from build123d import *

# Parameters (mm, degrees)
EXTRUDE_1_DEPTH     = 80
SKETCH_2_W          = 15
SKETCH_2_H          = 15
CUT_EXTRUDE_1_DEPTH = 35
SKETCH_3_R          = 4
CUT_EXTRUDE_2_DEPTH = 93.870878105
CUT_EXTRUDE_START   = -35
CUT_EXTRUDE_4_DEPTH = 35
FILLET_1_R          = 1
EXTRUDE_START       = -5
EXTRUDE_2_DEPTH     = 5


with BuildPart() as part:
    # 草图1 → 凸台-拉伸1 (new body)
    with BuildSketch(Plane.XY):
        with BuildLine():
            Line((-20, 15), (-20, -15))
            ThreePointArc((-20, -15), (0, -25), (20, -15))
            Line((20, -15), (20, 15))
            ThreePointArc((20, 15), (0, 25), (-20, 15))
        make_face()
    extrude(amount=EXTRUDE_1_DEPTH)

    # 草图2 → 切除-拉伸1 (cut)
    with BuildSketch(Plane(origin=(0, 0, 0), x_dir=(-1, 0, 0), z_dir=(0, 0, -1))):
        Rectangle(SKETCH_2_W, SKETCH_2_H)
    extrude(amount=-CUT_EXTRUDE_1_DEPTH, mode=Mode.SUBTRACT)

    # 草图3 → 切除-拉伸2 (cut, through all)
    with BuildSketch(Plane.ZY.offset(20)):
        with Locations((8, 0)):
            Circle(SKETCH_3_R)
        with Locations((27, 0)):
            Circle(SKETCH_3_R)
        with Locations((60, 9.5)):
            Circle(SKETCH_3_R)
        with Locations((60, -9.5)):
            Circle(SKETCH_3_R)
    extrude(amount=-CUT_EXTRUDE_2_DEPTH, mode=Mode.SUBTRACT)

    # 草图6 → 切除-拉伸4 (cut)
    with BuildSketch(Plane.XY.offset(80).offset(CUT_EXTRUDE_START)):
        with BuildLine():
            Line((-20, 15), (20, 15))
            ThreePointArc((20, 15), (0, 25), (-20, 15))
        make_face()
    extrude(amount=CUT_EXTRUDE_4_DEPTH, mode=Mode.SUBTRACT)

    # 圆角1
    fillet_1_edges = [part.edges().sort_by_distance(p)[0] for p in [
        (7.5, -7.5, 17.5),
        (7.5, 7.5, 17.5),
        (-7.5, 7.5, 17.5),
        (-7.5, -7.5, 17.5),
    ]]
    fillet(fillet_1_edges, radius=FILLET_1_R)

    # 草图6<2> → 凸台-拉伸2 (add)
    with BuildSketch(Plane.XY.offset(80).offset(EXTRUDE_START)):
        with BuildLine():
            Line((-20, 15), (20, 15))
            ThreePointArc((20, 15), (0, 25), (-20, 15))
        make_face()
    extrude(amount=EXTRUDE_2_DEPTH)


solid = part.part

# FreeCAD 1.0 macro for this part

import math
import FreeCAD as App
import Part
import Sketcher

V = App.Vector


def edges_at(feature, points):
    """Names of the edges that pass closest to the given points."""
    edges = feature.Shape.Edges
    near = lambda p: min(range(len(edges)), key=lambda i: edges[i].distToShape(Part.Vertex(*p))[0])
    return sorted({f"Edge{near(p) + 1}" for p in points})


def add_polygon(sketch, points):
    """Adds a closed chain of lines whose ends are joined by coincident constraints."""
    first, n = sketch.GeometryCount, len(points)
    for a, b in zip(points, points[1:] + points[:1]):
        sketch.addGeometry(Part.LineSegment(App.Vector(*a, 0), App.Vector(*b, 0)), False)
    for i in range(n):
        sketch.addConstraint(Sketcher.Constraint("Coincident", first + i, 2, first + (i + 1) % n, 1))

doc = App.newDocument("Part")
params = doc.addObject("Spreadsheet::Sheet", "Params")
for row, (alias, value) in enumerate([
    ("sketch1_radius", "25 mm"),
    ("sketch1_height", "30 mm"),
    ("pad1_length", "80 mm"),
    ("sketch2_width", "15 mm"),
    ("pocket1_length", "35 mm"),
    ("sketch3_diameter", "8 mm"),
    ("sketch4_radius", "25 mm"),
    ("sketch4_width", "40 mm"),
    ("pocket3_length", "35 mm"),
    ("fillet_radius", "1 mm"),
    ("sketch5_radius", "25 mm"),
    ("sketch5_width", "40 mm"),
    ("pad2_length", "5 mm"),
], start=1):
    params.set(f"A{row}", alias)
    params.set(f"B{row}", "=" + value)
    params.setAlias(f"B{row}", alias)

body = doc.addObject("PartDesign::Body", "Body")

sketch1 = body.newObject("Sketcher::SketchObject", "Sketch")
sketch1.AttachmentSupport = (doc.getObject("XY_Plane"), [""])
sketch1.MapMode = "FlatFace"
sketch1.addGeometry([
    Part.LineSegment(V(-20, 15, 0), V(-20, -15, 0)),
    Part.ArcOfCircle(Part.Circle(V(0, 0, 0), V(0, 0, 1), 25), math.radians(-143), math.radians(-37)),
    Part.LineSegment(V(20, -15, 0), V(20, 15, 0)),
    Part.ArcOfCircle(Part.Circle(V(0, 0, 0), V(0, 0, 1), 25), math.radians(37), math.radians(143)),
], False)
sketch1.addConstraint([
    Sketcher.Constraint("Coincident", 0, 2, 1, 1),
    Sketcher.Constraint("Coincident", 1, 2, 2, 1),
    Sketcher.Constraint("Coincident", 2, 2, 3, 1),
    Sketcher.Constraint("Coincident", 3, 2, 0, 1),
    Sketcher.Constraint("Vertical", 0),
    Sketcher.Constraint("Vertical", 2),
    Sketcher.Constraint("Coincident", 1, 3, -1, 1),
    Sketcher.Constraint("Coincident", 3, 3, -1, 1),
    Sketcher.Constraint("Equal", 1, 3),
    Sketcher.Constraint("Horizontal", 0, 2, 1, 2),
    Sketcher.Constraint("Radius", 1, 25.0),
    Sketcher.Constraint("DistanceY", 0, 2, 0, 1, 30.0),
])
sketch1.setExpression("Constraints[10]", "Params.sketch1_radius")
sketch1.setExpression("Constraints[11]", "Params.sketch1_height")
pad1 = body.newObject("PartDesign::Pad", "Pad")
pad1.Profile = sketch1
pad1.setExpression("Length", "Params.pad1_length")

sketch2 = body.newObject("Sketcher::SketchObject", "Sketch001")
sketch2.AttachmentSupport = (doc.getObject("XY_Plane"), [""])
sketch2.MapMode = "FlatFace"
add_polygon(sketch2, [(8, 8), (8, -8), (-8, -8), (-8, 8)])
sketch2.addConstraint([
    Sketcher.Constraint("Vertical", 0),
    Sketcher.Constraint("Horizontal", 1),
    Sketcher.Constraint("Vertical", 2),
    Sketcher.Constraint("Horizontal", 3),
    Sketcher.Constraint("Symmetric", 0, 2, 2, 2, -1, 1),
    Sketcher.Constraint("Equal", 3, 0),
    Sketcher.Constraint("DistanceX", 1, 2, 1, 1, 15.0),
])
sketch2.setExpression("Constraints[10]", "Params.sketch2_width")
pocket1 = body.newObject("PartDesign::Pocket", "Pocket")
pocket1.Profile = sketch2
pocket1.setExpression("Length", "Params.pocket1_length")
pocket1.Reversed = True

sketch3 = body.newObject("Sketcher::SketchObject", "Sketch002")
sketch3.AttachmentSupport = (doc.getObject("YZ_Plane"), [""])
sketch3.MapMode = "FlatFace"
sketch3.AttachmentOffset = App.Placement(V(0, 0, -20), App.Rotation())
sketch3.addGeometry([
    Part.Circle(V(0, 8, 0), V(0, 0, 1), 4),
    Part.Circle(V(0, 27, 0), V(0, 0, 1), 4),
    Part.Circle(V(9.5, 60, 0), V(0, 0, 1), 4),
    Part.Circle(V(-9.5, 60, 0), V(0, 0, 1), 4),
], False)
sketch3.addConstraint([
    Sketcher.Constraint("Equal", 0, 1),
    Sketcher.Constraint("Equal", 1, 2),
    Sketcher.Constraint("Equal", 2, 3),
    Sketcher.Constraint("Symmetric", 2, 3, 3, 3, -2),
    Sketcher.Constraint("PointOnObject", 0, 3, -2),
    Sketcher.Constraint("PointOnObject", 1, 3, -2),
    Sketcher.Constraint("Diameter", 0, 8.0),
    Sketcher.Constraint("DistanceY", -1, 1, 0, 3, 8.0),
    Sketcher.Constraint("DistanceY", -1, 1, 1, 3, 27.0),
    Sketcher.Constraint("DistanceY", -1, 1, 2, 3, 60.0),
    Sketcher.Constraint("DistanceX", 3, 3, 2, 3, 19.0),
])
sketch3.setExpression("Constraints[6]", "Params.sketch3_diameter")
pocket2 = body.newObject("PartDesign::Pocket", "Pocket001")
pocket2.Profile = sketch3
pocket2.Type = "ThroughAll"
pocket2.Reversed = True

sketch4 = body.newObject("Sketcher::SketchObject", "Sketch003")
sketch4.AttachmentSupport = (doc.getObject("XY_Plane"), [""])
sketch4.MapMode = "FlatFace"
sketch4.AttachmentOffset = App.Placement(V(0, 0, 45), App.Rotation())
sketch4.addGeometry([
    Part.LineSegment(V(-20, 15, 0), V(20, 15, 0)),
    Part.ArcOfCircle(Part.Circle(V(0, 0, 0), V(0, 0, 1), 25), math.radians(37), math.radians(143)),
], False)
sketch4.addConstraint([
    Sketcher.Constraint("Coincident", 0, 1, 1, 2),
    Sketcher.Constraint("Coincident", 1, 1, 0, 2),
    Sketcher.Constraint("Horizontal", 0),
    Sketcher.Constraint("Coincident", 1, 3, -1, 1),
    Sketcher.Constraint("Radius", 1, 25.0),
    Sketcher.Constraint("DistanceX", 0, 1, 0, 2, 40.0),
])
sketch4.setExpression("Constraints[4]", "Params.sketch4_radius")
sketch4.setExpression("Constraints[5]", "Params.sketch4_width")
pocket3 = body.newObject("PartDesign::Pocket", "Pocket002")
pocket3.Profile = sketch4
pocket3.setExpression("Length", "Params.pocket3_length")
pocket3.Reversed = True
doc.recompute()

fillet = body.newObject("PartDesign::Fillet", "Fillet")
fillet.Base = (pocket3, edges_at(pocket3, [
    (7.5, -7.5, 17.5),
    (7.5, 7.5, 17.5),
    (-7.5, 7.5, 17.5),
    (-7.5, -7.5, 17.5),
]))
fillet.setExpression("Radius", "Params.fillet_radius")

sketch5 = body.newObject("Sketcher::SketchObject", "Sketch004")
sketch5.AttachmentSupport = (doc.getObject("XY_Plane"), [""])
sketch5.MapMode = "FlatFace"
sketch5.AttachmentOffset = App.Placement(V(0, 0, 75), App.Rotation())
sketch5.addGeometry([
    Part.LineSegment(V(-20, 15, 0), V(20, 15, 0)),
    Part.ArcOfCircle(Part.Circle(V(0, 0, 0), V(0, 0, 1), 25), math.radians(37), math.radians(143)),
], False)
sketch5.addConstraint([
    Sketcher.Constraint("Coincident", 0, 1, 1, 2),
    Sketcher.Constraint("Coincident", 1, 1, 0, 2),
    Sketcher.Constraint("Horizontal", 0),
    Sketcher.Constraint("Coincident", 1, 3, -1, 1),
    Sketcher.Constraint("Radius", 1, 25.0),
    Sketcher.Constraint("DistanceX", 0, 1, 0, 2, 40.0),
])
sketch5.setExpression("Constraints[4]", "Params.sketch5_radius")
sketch5.setExpression("Constraints[5]", "Params.sketch5_width")
pad2 = body.newObject("PartDesign::Pad", "Pad001")
pad2.Profile = sketch5
pad2.setExpression("Length", "Params.pad2_length")

doc.recompute()
